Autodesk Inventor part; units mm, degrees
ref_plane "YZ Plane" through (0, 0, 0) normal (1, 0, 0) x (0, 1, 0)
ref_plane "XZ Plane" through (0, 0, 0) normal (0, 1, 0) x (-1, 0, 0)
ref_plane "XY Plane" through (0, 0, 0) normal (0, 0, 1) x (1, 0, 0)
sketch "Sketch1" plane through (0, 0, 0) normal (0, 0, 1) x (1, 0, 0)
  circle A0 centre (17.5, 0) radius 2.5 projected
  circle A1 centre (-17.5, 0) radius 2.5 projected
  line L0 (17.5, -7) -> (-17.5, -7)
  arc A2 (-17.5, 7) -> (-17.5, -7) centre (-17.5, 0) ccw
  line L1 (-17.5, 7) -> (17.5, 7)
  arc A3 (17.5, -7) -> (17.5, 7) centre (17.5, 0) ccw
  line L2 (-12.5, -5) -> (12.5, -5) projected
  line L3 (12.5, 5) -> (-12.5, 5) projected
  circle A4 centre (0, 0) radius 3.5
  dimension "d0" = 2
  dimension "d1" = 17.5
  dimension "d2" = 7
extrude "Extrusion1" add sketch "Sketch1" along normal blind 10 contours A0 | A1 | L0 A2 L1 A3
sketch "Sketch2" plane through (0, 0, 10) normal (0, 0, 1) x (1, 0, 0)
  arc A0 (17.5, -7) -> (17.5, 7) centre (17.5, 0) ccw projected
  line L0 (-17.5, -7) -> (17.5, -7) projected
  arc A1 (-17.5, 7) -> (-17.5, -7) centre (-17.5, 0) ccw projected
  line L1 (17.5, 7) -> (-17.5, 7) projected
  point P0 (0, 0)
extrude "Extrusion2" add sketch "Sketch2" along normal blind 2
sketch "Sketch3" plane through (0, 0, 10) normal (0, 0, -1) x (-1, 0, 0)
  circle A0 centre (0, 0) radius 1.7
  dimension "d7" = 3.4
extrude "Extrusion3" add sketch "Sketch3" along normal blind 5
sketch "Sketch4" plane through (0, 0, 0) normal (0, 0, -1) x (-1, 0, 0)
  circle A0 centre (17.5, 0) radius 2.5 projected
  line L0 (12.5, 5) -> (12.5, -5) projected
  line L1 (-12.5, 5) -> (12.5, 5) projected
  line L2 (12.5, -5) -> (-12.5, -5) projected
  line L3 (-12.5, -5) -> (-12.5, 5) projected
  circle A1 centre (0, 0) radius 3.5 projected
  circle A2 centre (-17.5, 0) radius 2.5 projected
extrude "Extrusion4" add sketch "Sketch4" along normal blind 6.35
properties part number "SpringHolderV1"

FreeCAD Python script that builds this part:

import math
import FreeCAD as App
import Part
import Sketcher

V = App.Vector

doc = App.newDocument("Part")
body = doc.addObject("PartDesign::Body", "Body")

# Sketch on XY plane
sketch1 = body.newObject("Sketcher::SketchObject", "Sketch")
sketch1.AttachmentSupport = (doc.getObject("XY_Plane"), [""])
sketch1.MapMode = "FlatFace"
sketch1.addGeometry([
    Part.LineSegment(V(-17.5, -7, 0), V(17.5, -7, 0)),  # 0
    Part.ArcOfCircle(Part.Circle(V(17.5, 0, 0), V(0, 0, 1), 7), math.radians(-90), math.radians(90)),  # 1
    Part.LineSegment(V(17.5, 7, 0), V(-17.5, 7, 0)),  # 2
    Part.ArcOfCircle(Part.Circle(V(-17.5, 0, 0), V(0, 0, 1), 7), math.radians(90), math.radians(270)),  # 3
    Part.Circle(V(0, 0, 0), V(0, 0, 1), 3.5),  # 4
], False)
sketch1.addConstraint([
    Sketcher.Constraint("Tangent", 0, 2, 1, 1),
    Sketcher.Constraint("Tangent", 1, 2, 2, 1),
    Sketcher.Constraint("Tangent", 2, 2, 3, 1),
    Sketcher.Constraint("Tangent", 3, 2, 0, 1),
    Sketcher.Constraint("Horizontal", 0),
    Sketcher.Constraint("Horizontal", 2),
    Sketcher.Constraint("Coincident", 4, 3, -1, 1),
    Sketcher.Constraint("Symmetric", 1, 3, 3, 3, -1, 1),
    Sketcher.Constraint("Diameter", 4, 7.0),
    Sketcher.Constraint("Radius", 1, 7.0),
    Sketcher.Constraint("DistanceX", -1, 1, 1, 3, 17.5),
])
pad1 = body.newObject("PartDesign::Pad", "Pad")
pad1.Profile = sketch1
pad1.Length = 10

# Sketch on XY plane
sketch2 = body.newObject("Sketcher::SketchObject", "Sketch001")
sketch2.AttachmentSupport = (doc.getObject("XY_Plane"), [""])
sketch2.MapMode = "FlatFace"
sketch2.AttachmentOffset = App.Placement(V(0, 0, 10), App.Rotation())
sketch2.addGeometry([
    Part.LineSegment(V(-18, -7, 0), V(18, -7, 0)),
    Part.ArcOfCircle(Part.Circle(V(18, 0, 0), V(0, 0, 1), 7), math.radians(-90), math.radians(90)),
    Part.LineSegment(V(18, 7, 0), V(-18, 7, 0)),
    Part.ArcOfCircle(Part.Circle(V(-18, 0, 0), V(0, 0, 1), 7), math.radians(90), math.radians(270)),
], False)
sketch2.addConstraint([
    Sketcher.Constraint("Tangent", 0, 2, 1, 1),
    Sketcher.Constraint("Tangent", 1, 2, 2, 1),
    Sketcher.Constraint("Tangent", 2, 2, 3, 1),
    Sketcher.Constraint("Tangent", 3, 2, 0, 1),
    Sketcher.Constraint("Horizontal", 0),
    Sketcher.Constraint("Horizontal", 2),
    Sketcher.Constraint("Symmetric", 1, 3, 3, 3, -1, 1),
    Sketcher.Constraint("Radius", 1, 7.0),
    Sketcher.Constraint("DistanceX", 0, 1, 0, 2, 35.0),
])
pad2 = body.newObject("PartDesign::Pad", "Pad001")
pad2.Profile = sketch2
pad2.Length = 2

# Sketch on XY plane
sketch3 = body.newObject("Sketcher::SketchObject", "Sketch002")
sketch3.AttachmentSupport = (doc.getObject("XY_Plane"), [""])
sketch3.MapMode = "FlatFace"
sketch3.AttachmentOffset = App.Placement(V(0, 0, 10), App.Rotation())
sketch3.addGeometry(Part.Circle(V(0, 0, 0), V(0, 0, 1), 1.7), False)
sketch3.addConstraint([
    Sketcher.Constraint("Coincident", 0, 3, -1, 1),
    Sketcher.Constraint("Diameter", 0, 3.4),
])
pad3 = body.newObject("PartDesign::Pad", "Pad002")
pad3.Profile = sketch3
pad3.Length = 5
pad3.Reversed = True

# Sketch on XY plane
sketch4 = body.newObject("Sketcher::SketchObject", "Sketch003")
sketch4.AttachmentSupport = (doc.getObject("XY_Plane"), [""])
sketch4.MapMode = "FlatFace"
sketch4.addGeometry([
    Part.Circle(V(-17.5, 0, 0), V(0, 0, 1), 2.5),  # 0
    Part.LineSegment(V(-12.5, -5, 0), V(-12.5, 5, 0)),  # 1
    Part.LineSegment(V(-12.5, 5, 0), V(12.5, 5, 0)),  # 2
    Part.LineSegment(V(12.5, 5, 0), V(12.5, -5, 0)),  # 3
    Part.LineSegment(V(12.5, -5, 0), V(-12.5, -5, 0)),  # 4
    Part.Circle(V(0, 0, 0), V(0, 0, 1), 3.5),  # 5
    Part.Circle(V(17.5, 0, 0), V(0, 0, 1), 2.5),  # 6
], False)
sketch4.addConstraint([
    Sketcher.Constraint("Coincident", 1, 2, 2, 1),
    Sketcher.Constraint("Coincident", 2, 2, 3, 1),
    Sketcher.Constraint("Coincident", 3, 2, 4, 1),
    Sketcher.Constraint("Coincident", 4, 2, 1, 1),
    Sketcher.Constraint("Vertical", 1),
    Sketcher.Constraint("Horizontal", 2),
    Sketcher.Constraint("Vertical", 3),
    Sketcher.Constraint("Horizontal", 4),
    Sketcher.Constraint("Coincident", 5, 3, -1, 1),
    Sketcher.Constraint("Equal", 0, 6),
    Sketcher.Constraint("Symmetric", 0, 3, 6, 3, -1, 1),
    Sketcher.Constraint("Symmetric", 1, 2, 3, 2, -1, 1),
    Sketcher.Constraint("PointOnObject", 0, 3, -1),
    Sketcher.Constraint("Diameter", 0, 5.0),
    Sketcher.Constraint("Diameter", 5, 7.0),
    Sketcher.Constraint("DistanceX", 2, 1, 2, 2, 25.0),
    Sketcher.Constraint("DistanceY", 1, 1, 1, 2, 10.0),
    Sketcher.Constraint("DistanceX", 0, 3, 6, 3, 35.0),
])
pad4 = body.newObject("PartDesign::Pad", "Pad003")
pad4.Profile = sketch4
pad4.Length = 6.35
pad4.Reversed = True

doc.recompute()
